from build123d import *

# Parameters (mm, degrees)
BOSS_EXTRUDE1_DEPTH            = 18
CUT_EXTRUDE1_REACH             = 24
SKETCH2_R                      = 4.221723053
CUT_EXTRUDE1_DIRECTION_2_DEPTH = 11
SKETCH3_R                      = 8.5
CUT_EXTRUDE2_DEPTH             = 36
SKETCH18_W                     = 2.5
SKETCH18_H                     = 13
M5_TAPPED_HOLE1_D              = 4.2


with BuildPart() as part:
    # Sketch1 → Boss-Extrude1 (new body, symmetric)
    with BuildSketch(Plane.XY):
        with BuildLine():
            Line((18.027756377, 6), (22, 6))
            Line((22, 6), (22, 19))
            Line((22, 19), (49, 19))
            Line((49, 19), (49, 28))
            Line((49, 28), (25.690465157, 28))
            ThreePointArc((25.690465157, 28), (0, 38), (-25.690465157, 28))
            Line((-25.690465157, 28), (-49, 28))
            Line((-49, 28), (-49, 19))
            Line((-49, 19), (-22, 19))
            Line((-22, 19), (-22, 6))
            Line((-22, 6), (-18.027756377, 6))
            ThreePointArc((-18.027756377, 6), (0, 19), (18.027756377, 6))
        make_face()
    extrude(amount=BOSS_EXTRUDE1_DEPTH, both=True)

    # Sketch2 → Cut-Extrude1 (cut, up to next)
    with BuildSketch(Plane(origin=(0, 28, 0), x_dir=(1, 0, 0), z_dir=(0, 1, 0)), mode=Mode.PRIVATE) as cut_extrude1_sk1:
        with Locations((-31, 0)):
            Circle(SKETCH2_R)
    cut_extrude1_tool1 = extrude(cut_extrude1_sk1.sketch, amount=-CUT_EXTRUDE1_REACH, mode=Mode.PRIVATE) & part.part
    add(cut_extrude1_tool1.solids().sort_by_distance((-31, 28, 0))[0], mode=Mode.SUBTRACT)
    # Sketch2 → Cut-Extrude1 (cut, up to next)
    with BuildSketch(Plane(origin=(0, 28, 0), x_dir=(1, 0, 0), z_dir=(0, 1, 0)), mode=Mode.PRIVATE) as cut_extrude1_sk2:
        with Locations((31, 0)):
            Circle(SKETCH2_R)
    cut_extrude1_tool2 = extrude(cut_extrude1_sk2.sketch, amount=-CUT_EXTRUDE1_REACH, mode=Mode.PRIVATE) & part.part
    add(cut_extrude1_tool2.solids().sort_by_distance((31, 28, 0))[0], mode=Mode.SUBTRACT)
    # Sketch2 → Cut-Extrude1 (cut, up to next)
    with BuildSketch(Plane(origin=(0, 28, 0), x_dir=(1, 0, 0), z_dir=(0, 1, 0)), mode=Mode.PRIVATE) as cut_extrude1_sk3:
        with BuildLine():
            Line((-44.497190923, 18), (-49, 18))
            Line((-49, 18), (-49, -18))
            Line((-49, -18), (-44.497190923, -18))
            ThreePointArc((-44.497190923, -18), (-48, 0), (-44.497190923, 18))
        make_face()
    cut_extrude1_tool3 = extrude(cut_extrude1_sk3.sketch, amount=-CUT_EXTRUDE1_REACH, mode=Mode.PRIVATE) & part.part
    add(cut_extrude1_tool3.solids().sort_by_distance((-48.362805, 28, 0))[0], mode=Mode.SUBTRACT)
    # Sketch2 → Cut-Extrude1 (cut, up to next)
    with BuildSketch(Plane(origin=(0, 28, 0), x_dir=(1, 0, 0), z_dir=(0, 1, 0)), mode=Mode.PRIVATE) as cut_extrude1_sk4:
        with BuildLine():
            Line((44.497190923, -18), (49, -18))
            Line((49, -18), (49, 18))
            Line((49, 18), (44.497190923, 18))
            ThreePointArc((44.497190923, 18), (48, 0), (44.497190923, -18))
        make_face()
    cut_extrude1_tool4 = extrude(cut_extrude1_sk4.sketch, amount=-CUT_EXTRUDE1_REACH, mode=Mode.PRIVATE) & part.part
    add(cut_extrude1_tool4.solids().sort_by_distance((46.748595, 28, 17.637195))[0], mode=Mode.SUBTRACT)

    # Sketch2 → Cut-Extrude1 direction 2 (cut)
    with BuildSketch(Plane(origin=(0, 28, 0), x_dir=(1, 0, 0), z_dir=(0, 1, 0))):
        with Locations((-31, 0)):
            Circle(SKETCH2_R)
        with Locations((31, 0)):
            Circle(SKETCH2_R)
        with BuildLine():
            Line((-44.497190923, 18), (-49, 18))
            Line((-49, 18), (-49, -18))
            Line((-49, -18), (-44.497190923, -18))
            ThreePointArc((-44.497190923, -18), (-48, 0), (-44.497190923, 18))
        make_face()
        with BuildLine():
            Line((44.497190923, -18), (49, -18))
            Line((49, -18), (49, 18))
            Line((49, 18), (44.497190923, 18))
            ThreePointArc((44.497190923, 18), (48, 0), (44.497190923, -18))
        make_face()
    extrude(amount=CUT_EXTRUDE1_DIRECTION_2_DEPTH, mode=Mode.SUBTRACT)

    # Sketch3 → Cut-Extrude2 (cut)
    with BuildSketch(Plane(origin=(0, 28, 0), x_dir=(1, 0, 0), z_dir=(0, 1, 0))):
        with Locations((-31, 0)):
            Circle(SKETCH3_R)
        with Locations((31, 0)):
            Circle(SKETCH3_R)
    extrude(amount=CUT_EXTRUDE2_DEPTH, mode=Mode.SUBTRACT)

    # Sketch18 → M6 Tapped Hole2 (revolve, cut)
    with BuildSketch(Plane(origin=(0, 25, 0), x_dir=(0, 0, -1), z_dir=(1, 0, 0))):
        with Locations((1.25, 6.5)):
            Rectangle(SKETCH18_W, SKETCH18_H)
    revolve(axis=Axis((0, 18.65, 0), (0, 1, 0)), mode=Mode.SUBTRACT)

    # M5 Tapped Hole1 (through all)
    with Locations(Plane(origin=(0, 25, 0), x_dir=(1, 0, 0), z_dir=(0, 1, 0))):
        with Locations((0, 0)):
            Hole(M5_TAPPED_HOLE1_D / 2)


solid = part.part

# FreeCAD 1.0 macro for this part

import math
import FreeCAD as App
import Part
import Sketcher
from FreeCAD import Vector


def add_polygon(sketch, points):
    """Adds a closed chain of lines whose ends are joined by coincident constraints."""
    first, n = sketch.GeometryCount, len(points)
    for a, b in zip(points, points[1:] + points[:1]):
        sketch.addGeometry(Part.LineSegment(App.Vector(*a, 0), App.Vector(*b, 0)), False)
    for i in range(n):
        sketch.addConstraint(Sketcher.Constraint("Coincident", first + i, 2, first + (i + 1) % n, 1))

doc = App.newDocument("Part")
body = doc.addObject("PartDesign::Body", "Body")

# Sketch on XY plane
sketch1 = body.newObject("Sketcher::SketchObject", "Sketch")
sketch1.AttachmentSupport = (doc.getObject("XY_Plane"), [""])
sketch1.MapMode = "FlatFace"
sketch1.addGeometry([
    Part.LineSegment(Vector(18, 6, 0), Vector(22, 6, 0)),  # 0
    Part.LineSegment(Vector(22, 6, 0), Vector(22, 19, 0)),  # 1
    Part.LineSegment(Vector(22, 19, 0), Vector(49, 19, 0)),  # 2
    Part.LineSegment(Vector(49, 19, 0), Vector(49, 28, 0)),  # 3
    Part.LineSegment(Vector(49, 28, 0), Vector(25.7, 28, 0)),  # 4
    Part.ArcOfCircle(Part.Circle(Vector(0, 0, 0), Vector(0, 0, 1), 38), math.radians(47), math.radians(133)),  # 5
    Part.LineSegment(Vector(-25.7, 28, 0), Vector(-49, 28, 0)),  # 6
    Part.LineSegment(Vector(-49, 28, 0), Vector(-49, 19, 0)),  # 7
    Part.LineSegment(Vector(-49, 19, 0), Vector(-22, 19, 0)),  # 8
    Part.LineSegment(Vector(-22, 19, 0), Vector(-22, 6, 0)),  # 9
    Part.LineSegment(Vector(-22, 6, 0), Vector(-18, 6, 0)),  # 10
    Part.ArcOfCircle(Part.Circle(Vector(0, 0, 0), Vector(0, 0, 1), 19), math.radians(18), math.radians(162)),  # 11
], False)
sketch1.addConstraint([
    Sketcher.Constraint("Coincident", 0, 2, 1, 1),
    Sketcher.Constraint("Coincident", 1, 2, 2, 1),
    Sketcher.Constraint("Coincident", 2, 2, 3, 1),
    Sketcher.Constraint("Coincident", 3, 2, 4, 1),
    Sketcher.Constraint("Coincident", 4, 2, 5, 1),
    Sketcher.Constraint("Coincident", 5, 2, 6, 1),
    Sketcher.Constraint("Coincident", 6, 2, 7, 1),
    Sketcher.Constraint("Coincident", 7, 2, 8, 1),
    Sketcher.Constraint("Coincident", 8, 2, 9, 1),
    Sketcher.Constraint("Coincident", 9, 2, 10, 1),
    Sketcher.Constraint("Coincident", 10, 2, 11, 2),
    Sketcher.Constraint("Coincident", 11, 1, 0, 1),
    Sketcher.Constraint("Horizontal", 0),
    Sketcher.Constraint("Vertical", 1),
    Sketcher.Constraint("Horizontal", 2),
    Sketcher.Constraint("Vertical", 3),
    Sketcher.Constraint("Horizontal", 4),
    Sketcher.Constraint("Horizontal", 6),
    Sketcher.Constraint("Vertical", 7),
    Sketcher.Constraint("Horizontal", 8),
    Sketcher.Constraint("Vertical", 9),
    Sketcher.Constraint("Horizontal", 10),
    Sketcher.Constraint("Coincident", 5, 3, -1, 1),
    Sketcher.Constraint("Coincident", 11, 3, -1, 1),
    Sketcher.Constraint("Symmetric", 3, 2, 6, 2, -2),
    Sketcher.Constraint("Symmetric", 1, 2, 8, 2, -2),
    Sketcher.Constraint("Horizontal", 0, 2, 9, 2),
    Sketcher.Constraint("Radius", 5, 38.0),
    Sketcher.Constraint("Radius", 11, 19.0),
    Sketcher.Constraint("DistanceX", 2, 1, 2, 2, 27.0),
    Sketcher.Constraint("DistanceY", 1, 1, 1, 2, 13.0),
    Sketcher.Constraint("DistanceY", 3, 1, 3, 2, 9.0),
    Sketcher.Constraint("DistanceX", -1, 1, 0, 2, 22.0),
    Sketcher.Constraint("DistanceY", -1, 1, 0, 2, 6.0),
])
pad1 = body.newObject("PartDesign::Pad", "Pad")
pad1.Profile = sketch1
pad1.Length = 36
pad1.Midplane = True

# Sketch on XZ plane
sketch2 = body.newObject("Sketcher::SketchObject", "Sketch001")
sketch2.AttachmentSupport = (doc.getObject("XZ_Plane"), [""])
sketch2.MapMode = "FlatFace"
sketch2.AttachmentOffset = App.Placement(Vector(0, 0, -28), App.Rotation())
sketch2.addGeometry(Part.Circle(Vector(-31, 0, 0), Vector(0, 0, 1), 4.2), False)
sketch2.addConstraint([
    Sketcher.Constraint("PointOnObject", 0, 3, -1),
    Sketcher.Constraint("DistanceX", 0, 3, -1, 1, 31.0),
    Sketcher.Constraint("Diameter", 0, 8.443446),
])
pocket1 = body.newObject("PartDesign::Pocket", "Pocket")
pocket1.Profile = sketch2
pocket1.Type = "UpToFirst"
pocket1.Reversed = True

# Sketch on XZ plane
sketch3 = body.newObject("Sketcher::SketchObject", "Sketch002")
sketch3.AttachmentSupport = (doc.getObject("XZ_Plane"), [""])
sketch3.MapMode = "FlatFace"
sketch3.AttachmentOffset = App.Placement(Vector(0, 0, -28), App.Rotation())
sketch3.addGeometry(Part.Circle(Vector(31, 0, 0), Vector(0, 0, 1), 4.2), False)
sketch3.addConstraint([
    Sketcher.Constraint("PointOnObject", 0, 3, -1),
    Sketcher.Constraint("DistanceX", -1, 1, 0, 3, 31.0),
    Sketcher.Constraint("Diameter", 0, 8.443446),
])
pocket2 = body.newObject("PartDesign::Pocket", "Pocket001")
pocket2.Profile = sketch3
pocket2.Type = "UpToFirst"
pocket2.Reversed = True

# Sketch on XZ plane
sketch4 = body.newObject("Sketcher::SketchObject", "Sketch003")
sketch4.AttachmentSupport = (doc.getObject("XZ_Plane"), [""])
sketch4.MapMode = "FlatFace"
sketch4.AttachmentOffset = App.Placement(Vector(0, 0, -28), App.Rotation())
sketch4.addGeometry([
    Part.LineSegment(Vector(-44.5, -18, 0), Vector(-49, -18, 0)),
    Part.LineSegment(Vector(-49, -18, 0), Vector(-49, 18, 0)),
    Part.LineSegment(Vector(-49, 18, 0), Vector(-44.5, 18, 0)),
    Part.ArcOfCircle(Part.Circle(Vector(0, 0, 0), Vector(0, 0, 1), 48), math.radians(158), math.radians(202)),
], False)
sketch4.addConstraint([
    Sketcher.Constraint("Coincident", 0, 2, 1, 1),
    Sketcher.Constraint("Coincident", 1, 2, 2, 1),
    Sketcher.Constraint("Coincident", 2, 2, 3, 1),
    Sketcher.Constraint("Coincident", 3, 2, 0, 1),
    Sketcher.Constraint("Horizontal", 0),
    Sketcher.Constraint("Vertical", 1),
    Sketcher.Constraint("Horizontal", 2),
    Sketcher.Constraint("Coincident", 3, 3, -1, 1),
    Sketcher.Constraint("Vertical", 2, 2, 3, 2),
    Sketcher.Constraint("Radius", 3, 48.0),
    Sketcher.Constraint("DistanceY", 1, 1, 1, 2, 36.0),
    Sketcher.Constraint("DistanceX", 0, 2, -1, 1, 49.0),
])
pocket3 = body.newObject("PartDesign::Pocket", "Pocket002")
pocket3.Profile = sketch4
pocket3.Type = "UpToFirst"
pocket3.Reversed = True

# Sketch on XZ plane
sketch5 = body.newObject("Sketcher::SketchObject", "Sketch004")
sketch5.AttachmentSupport = (doc.getObject("XZ_Plane"), [""])
sketch5.MapMode = "FlatFace"
sketch5.AttachmentOffset = App.Placement(Vector(0, 0, -28), App.Rotation())
sketch5.addGeometry([
    Part.LineSegment(Vector(44.5, 18, 0), Vector(49, 18, 0)),
    Part.LineSegment(Vector(49, 18, 0), Vector(49, -18, 0)),
    Part.LineSegment(Vector(49, -18, 0), Vector(44.5, -18, 0)),
    Part.ArcOfCircle(Part.Circle(Vector(0, 0, 0), Vector(0, 0, 1), 48), math.radians(-22), math.radians(22)),
], False)
sketch5.addConstraint([
    Sketcher.Constraint("Coincident", 0, 2, 1, 1),
    Sketcher.Constraint("Coincident", 1, 2, 2, 1),
    Sketcher.Constraint("Coincident", 2, 2, 3, 1),
    Sketcher.Constraint("Coincident", 3, 2, 0, 1),
    Sketcher.Constraint("Horizontal", 0),
    Sketcher.Constraint("Vertical", 1),
    Sketcher.Constraint("Horizontal", 2),
    Sketcher.Constraint("Coincident", 3, 3, -1, 1),
    Sketcher.Constraint("Vertical", 2, 2, 3, 2),
    Sketcher.Constraint("Radius", 3, 48.0),
    Sketcher.Constraint("DistanceY", 1, 2, 1, 1, 36.0),
    Sketcher.Constraint("DistanceX", -1, 1, 0, 2, 49.0),
])
pocket4 = body.newObject("PartDesign::Pocket", "Pocket003")
pocket4.Profile = sketch5
pocket4.Type = "UpToFirst"
pocket4.Reversed = True

# Sketch on XZ plane
sketch6 = body.newObject("Sketcher::SketchObject", "Sketch005")
sketch6.AttachmentSupport = (doc.getObject("XZ_Plane"), [""])
sketch6.MapMode = "FlatFace"
sketch6.AttachmentOffset = App.Placement(Vector(0, 0, -28), App.Rotation())
sketch6.addGeometry([
    Part.Circle(Vector(-31, 0, 0), Vector(0, 0, 1), 4.2),  # 0
    Part.Circle(Vector(31, 0, 0), Vector(0, 0, 1), 4.2),  # 1
    Part.LineSegment(Vector(-44.5, -18, 0), Vector(-49, -18, 0)),  # 2
    Part.LineSegment(Vector(-49, -18, 0), Vector(-49, 18, 0)),  # 3
    Part.LineSegment(Vector(-49, 18, 0), Vector(-44.5, 18, 0)),  # 4
    Part.ArcOfCircle(Part.Circle(Vector(0, 0, 0), Vector(0, 0, 1), 48), math.radians(158), math.radians(202)),  # 5
    Part.LineSegment(Vector(44.5, 18, 0), Vector(49, 18, 0)),  # 6
    Part.LineSegment(Vector(49, 18, 0), Vector(49, -18, 0)),  # 7
    Part.LineSegment(Vector(49, -18, 0), Vector(44.5, -18, 0)),  # 8
    Part.ArcOfCircle(Part.Circle(Vector(0, 0, 0), Vector(0, 0, 1), 48), math.radians(-22), math.radians(22)),  # 9
], False)
sketch6.addConstraint([
    Sketcher.Constraint("Coincident", 2, 2, 3, 1),
    Sketcher.Constraint("Coincident", 3, 2, 4, 1),
    Sketcher.Constraint("Coincident", 4, 2, 5, 1),
    Sketcher.Constraint("Coincident", 5, 2, 2, 1),
    Sketcher.Constraint("Coincident", 6, 2, 7, 1),
    Sketcher.Constraint("Coincident", 7, 2, 8, 1),
    Sketcher.Constraint("Coincident", 8, 2, 9, 1),
    Sketcher.Constraint("Coincident", 9, 2, 6, 1),
    Sketcher.Constraint("Horizontal", 2),
    Sketcher.Constraint("Vertical", 3),
    Sketcher.Constraint("Horizontal", 4),
    Sketcher.Constraint("Horizontal", 6),
    Sketcher.Constraint("Vertical", 7),
    Sketcher.Constraint("Horizontal", 8),
    Sketcher.Constraint("Coincident", 5, 3, -1, 1),
    Sketcher.Constraint("Coincident", 9, 3, -1, 1),
    Sketcher.Constraint("Equal", 0, 1),
    Sketcher.Constraint("Equal", 5, 9),
    Sketcher.Constraint("Symmetric", 0, 3, 1, 3, -1, 1),
    Sketcher.Constraint("Symmetric", 2, 2, 6, 2, -1, 1),
    Sketcher.Constraint("PointOnObject", 0, 3, -1),
    Sketcher.Constraint("Horizontal", 4, 2, 6, 2),
    Sketcher.Constraint("Horizontal", 5, 2, 7, 2),
    Sketcher.Constraint("Radius", 5, 48.0),
    Sketcher.Constraint("DistanceY", 3, 1, 3, 2, 36.0),
    Sketcher.Constraint("DistanceX", 0, 3, -1, 1, 31.0),
    Sketcher.Constraint("DistanceX", 2, 2, -1, 1, 49.0),
    Sketcher.Constraint("Diameter", 0, 8.443446),
])
pocket5 = body.newObject("PartDesign::Pocket", "Pocket004")
pocket5.Profile = sketch6
pocket5.Length = 11

# Sketch on XZ plane
sketch7 = body.newObject("Sketcher::SketchObject", "Sketch006")
sketch7.AttachmentSupport = (doc.getObject("XZ_Plane"), [""])
sketch7.MapMode = "FlatFace"
sketch7.AttachmentOffset = App.Placement(Vector(0, 0, -28), App.Rotation())
sketch7.addGeometry([
    Part.Circle(Vector(-31, 0, 0), Vector(0, 0, 1), 8),
    Part.Circle(Vector(31, 0, 0), Vector(0, 0, 1), 8),
], False)
sketch7.addConstraint([
    Sketcher.Constraint("Equal", 0, 1),
    Sketcher.Constraint("Symmetric", 0, 3, 1, 3, -1, 1),
    Sketcher.Constraint("PointOnObject", 0, 3, -1),
    Sketcher.Constraint("Diameter", 0, 17.0),
    Sketcher.Constraint("DistanceX", 0, 3, -1, 1, 31.0),
])
pocket6 = body.newObject("PartDesign::Pocket", "Pocket005")
pocket6.Profile = sketch7
pocket6.Length = 36

# Sketch on YZ plane
sketch8 = body.newObject("Sketcher::SketchObject", "Sketch007")
sketch8.AttachmentSupport = (doc.getObject("YZ_Plane"), [""])
sketch8.MapMode = "FlatFace"
add_polygon(sketch8, [(38, 0), (25, 0), (25, -2.5), (38, -2.5)])  # lines 0-3
sketch8.addConstraint([
    Sketcher.Constraint("Horizontal", 0),
    Sketcher.Constraint("Vertical", 1),
    Sketcher.Constraint("Horizontal", 2),
    Sketcher.Constraint("Vertical", 3),
    Sketcher.Constraint("PointOnObject", 0, 2, -1),
    Sketcher.Constraint("DistanceX", 0, 2, 0, 1, 13.0),
    Sketcher.Constraint("DistanceY", 1, 2, 1, 1, 2.5),
    Sketcher.Constraint("DistanceX", -1, 1, 0, 2, 25.0),
])
groove = body.newObject("PartDesign::Groove", "Groove")
groove.Profile = sketch8
groove.ReferenceAxis = (sketch8, ["H_Axis"])
groove.Angle = 360

# Sketch on XZ plane
sketch9 = body.newObject("Sketcher::SketchObject", "Sketch008")
sketch9.AttachmentSupport = (doc.getObject("XZ_Plane"), [""])
sketch9.MapMode = "FlatFace"
sketch9.AttachmentOffset = App.Placement(Vector(0, 0, -25), App.Rotation())
sketch9.addGeometry(Part.Circle(Vector(0, 0, 0), Vector(0, 0, 1), 2.1), False)
sketch9.addConstraint([
    Sketcher.Constraint("Coincident", 0, 3, -1, 1),
    Sketcher.Constraint("Diameter", 0, 4.2),
])
doc.recompute()
hole = body.newObject("PartDesign::Hole", "Hole")
hole.Profile = sketch9
hole.ThreadType = "None"
hole.Diameter = 4.2
hole.DepthType = "ThroughAll"
hole.Reversed = True

doc.recompute()
